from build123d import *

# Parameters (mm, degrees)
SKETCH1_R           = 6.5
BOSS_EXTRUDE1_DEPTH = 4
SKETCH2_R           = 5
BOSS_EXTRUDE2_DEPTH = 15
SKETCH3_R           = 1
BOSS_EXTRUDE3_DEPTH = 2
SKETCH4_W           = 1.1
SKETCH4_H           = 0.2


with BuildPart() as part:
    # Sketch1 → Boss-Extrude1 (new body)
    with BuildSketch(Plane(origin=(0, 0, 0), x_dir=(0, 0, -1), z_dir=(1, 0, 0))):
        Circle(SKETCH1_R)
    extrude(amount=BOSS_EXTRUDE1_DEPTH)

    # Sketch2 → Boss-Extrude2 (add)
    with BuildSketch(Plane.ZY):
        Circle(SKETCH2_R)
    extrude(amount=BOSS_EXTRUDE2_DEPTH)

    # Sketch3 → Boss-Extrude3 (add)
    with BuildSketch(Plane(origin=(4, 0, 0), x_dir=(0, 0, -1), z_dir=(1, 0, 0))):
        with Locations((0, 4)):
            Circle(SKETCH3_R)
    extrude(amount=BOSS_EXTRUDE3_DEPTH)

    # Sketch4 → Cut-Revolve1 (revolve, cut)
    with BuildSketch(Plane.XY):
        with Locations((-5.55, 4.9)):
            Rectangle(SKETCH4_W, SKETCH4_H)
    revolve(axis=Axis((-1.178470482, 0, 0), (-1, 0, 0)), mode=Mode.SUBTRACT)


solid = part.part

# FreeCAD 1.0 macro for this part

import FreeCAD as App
import Part
import Sketcher
from FreeCAD import Vector
Q = App.Units.Quantity


def add_polygon(sketch, points):
    """Adds a closed chain of lines whose ends are joined by coincident constraints."""
    first, n = sketch.GeometryCount, len(points)
    for a, b in zip(points, points[1:] + points[:1]):
        sketch.addGeometry(Part.LineSegment(App.Vector(*a, 0), App.Vector(*b, 0)), False)
    for i in range(n):
        sketch.addConstraint(Sketcher.Constraint("Coincident", first + i, 2, first + (i + 1) % n, 1))

doc = App.newDocument("Part")
body = doc.addObject("PartDesign::Body", "Body")

# Sketch on YZ plane
sketch1 = doc.addObject("Sketcher::SketchObject", "Sketch")
body.addObject(sketch1)
sketch1.AttachmentSupport = (doc.YZ_Plane, [""])
sketch1.MapMode = "FlatFace"
sketch1.addGeometry(Part.Circle(Vector(0, 0, 0), Vector(0, 0, 1), 6), False)
sketch1.addConstraint(Sketcher.Constraint("Coincident", 0, 3, -1, 1))
sketch1.addConstraint(Sketcher.Constraint("Diameter", 0, Q("13 mm")))
pad1 = doc.addObject("PartDesign::Pad", "Pad")
body.addObject(pad1)
pad1.Profile = sketch1
pad1.Length = 4

# Sketch on YZ plane
sketch2 = doc.addObject("Sketcher::SketchObject", "Sketch001")
body.addObject(sketch2)
sketch2.AttachmentSupport = (doc.YZ_Plane, [""])
sketch2.MapMode = "FlatFace"
sketch2.addGeometry(Part.Circle(Vector(0, 0, 0), Vector(0, 0, 1), 5), False)
sketch2.addConstraint(Sketcher.Constraint("Coincident", 0, 3, -1, 1))
sketch2.addConstraint(Sketcher.Constraint("Diameter", 0, Q("10 mm")))
pad2 = doc.addObject("PartDesign::Pad", "Pad001")
body.addObject(pad2)
pad2.Profile = sketch2
pad2.Length = 15
pad2.Reversed = True

# Sketch on YZ plane
sketch3 = doc.addObject("Sketcher::SketchObject", "Sketch002")
body.addObject(sketch3)
sketch3.AttachmentSupport = (doc.YZ_Plane, [""])
sketch3.MapMode = "FlatFace"
sketch3.AttachmentOffset = App.Placement(Vector(0, 0, 4), App.Rotation())
sketch3.addGeometry(Part.Circle(Vector(4, 0, 0), Vector(0, 0, 1), 1), False)
sketch3.addConstraint(Sketcher.Constraint("PointOnObject", 0, 3, -1))
sketch3.addConstraint(Sketcher.Constraint("Diameter", 0, Q("2 mm")))
sketch3.addConstraint(Sketcher.Constraint("DistanceX", -1, 1, 0, 3, Q("4 mm")))
pad3 = doc.addObject("PartDesign::Pad", "Pad002")
body.addObject(pad3)
pad3.Profile = sketch3
pad3.Length = 2

# Sketch on XY plane
sketch4 = doc.addObject("Sketcher::SketchObject", "Sketch003")
body.addObject(sketch4)
sketch4.AttachmentSupport = (doc.XY_Plane, [""])
sketch4.MapMode = "FlatFace"
add_polygon(sketch4, [(-6.1, 5), (-6.1, 4.8), (-5, 4.8), (-5, 5)])  # lines 0-3
sketch4.addConstraint(Sketcher.Constraint("Vertical", 0))
sketch4.addConstraint(Sketcher.Constraint("Horizontal", 1))
sketch4.addConstraint(Sketcher.Constraint("Vertical", 2))
sketch4.addConstraint(Sketcher.Constraint("Horizontal", 3))
sketch4.addConstraint(Sketcher.Constraint("DistanceX", 1, 1, 1, 2, Q("1.1 mm")))
sketch4.addConstraint(Sketcher.Constraint("DistanceY", 0, 2, 0, 1, Q("0.2 mm")))
sketch4.addConstraint(Sketcher.Constraint("DistanceX", 1, 2, -1, 1, Q("5 mm")))
sketch4.addConstraint(Sketcher.Constraint("DistanceY", -1, 1, 2, 2, Q("5 mm")))
groove = doc.addObject("PartDesign::Groove", "Groove")
body.addObject(groove)
groove.Profile = sketch4
groove.ReferenceAxis = (sketch4, ["H_Axis"])
groove.Angle = 360

doc.recompute()
